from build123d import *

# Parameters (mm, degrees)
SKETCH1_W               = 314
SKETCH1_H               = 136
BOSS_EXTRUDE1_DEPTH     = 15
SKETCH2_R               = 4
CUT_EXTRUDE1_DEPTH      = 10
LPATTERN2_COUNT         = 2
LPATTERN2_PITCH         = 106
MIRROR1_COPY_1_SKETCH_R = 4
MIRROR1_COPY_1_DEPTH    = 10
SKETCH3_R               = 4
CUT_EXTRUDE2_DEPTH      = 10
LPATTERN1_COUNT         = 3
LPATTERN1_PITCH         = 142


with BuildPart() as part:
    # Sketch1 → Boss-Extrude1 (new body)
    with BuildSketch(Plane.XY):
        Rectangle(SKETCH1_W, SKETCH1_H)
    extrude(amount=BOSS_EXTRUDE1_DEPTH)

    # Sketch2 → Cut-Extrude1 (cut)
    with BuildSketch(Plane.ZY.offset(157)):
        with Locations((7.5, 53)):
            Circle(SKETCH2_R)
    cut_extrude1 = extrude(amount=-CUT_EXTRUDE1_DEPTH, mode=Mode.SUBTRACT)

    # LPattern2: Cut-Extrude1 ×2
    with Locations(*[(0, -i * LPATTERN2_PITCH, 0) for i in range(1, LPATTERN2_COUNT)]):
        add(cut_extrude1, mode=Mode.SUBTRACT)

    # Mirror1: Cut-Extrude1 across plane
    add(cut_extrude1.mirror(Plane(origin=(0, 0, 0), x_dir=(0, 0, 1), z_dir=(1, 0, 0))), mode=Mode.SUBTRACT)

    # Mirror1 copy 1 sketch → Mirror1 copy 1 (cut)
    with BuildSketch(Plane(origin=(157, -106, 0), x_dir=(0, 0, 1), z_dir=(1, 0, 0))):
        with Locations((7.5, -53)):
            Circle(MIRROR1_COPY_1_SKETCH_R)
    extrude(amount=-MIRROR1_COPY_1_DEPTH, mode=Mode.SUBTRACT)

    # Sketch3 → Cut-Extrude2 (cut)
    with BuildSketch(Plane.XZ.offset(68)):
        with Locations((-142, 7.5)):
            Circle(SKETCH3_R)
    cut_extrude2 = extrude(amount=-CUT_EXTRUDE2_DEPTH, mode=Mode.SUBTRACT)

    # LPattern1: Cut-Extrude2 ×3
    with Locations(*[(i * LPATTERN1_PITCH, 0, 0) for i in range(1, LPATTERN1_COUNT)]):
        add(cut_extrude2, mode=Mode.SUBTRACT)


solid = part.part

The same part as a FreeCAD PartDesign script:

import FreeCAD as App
import Part
import Sketcher
from FreeCAD import Vector
Q = App.Units.Quantity

doc = App.newDocument("Part")
body = doc.addObject("PartDesign::Body", "Body")

sketch1 = body.newObject("Sketcher::SketchObject", "Sketch")
sketch1.AttachmentSupport = (doc.getObject("XY_Plane"), [""])
sketch1.MapMode = "FlatFace"
sketch1.addGeometry([
    Part.LineSegment(Vector(-157, 68, 0), Vector(-157, -68, 0)),
    Part.LineSegment(Vector(-157, -68, 0), Vector(157, -68, 0)),
    Part.LineSegment(Vector(157, -68, 0), Vector(157, 68, 0)),
    Part.LineSegment(Vector(157, 68, 0), Vector(-157, 68, 0)),
], False)
sketch1.addConstraint([
    Sketcher.Constraint("Coincident", 0, 2, 1, 1),
    Sketcher.Constraint("Coincident", 1, 2, 2, 1),
    Sketcher.Constraint("Coincident", 2, 2, 3, 1),
    Sketcher.Constraint("Coincident", 3, 2, 0, 1),
    Sketcher.Constraint("Vertical", 0),
    Sketcher.Constraint("Horizontal", 1),
    Sketcher.Constraint("Vertical", 2),
    Sketcher.Constraint("Horizontal", 3),
    Sketcher.Constraint("Symmetric", 0, 2, 2, 2, -1, 1),
    Sketcher.Constraint("DistanceX", 1, 1, 1, 2, Q("314 mm")),
    Sketcher.Constraint("DistanceY", 0, 2, 0, 1, Q("136 mm")),
])
pad1 = body.newObject("PartDesign::Pad", "Pad")
pad1.Profile = sketch1
pad1.Length = 15

sketch2 = body.newObject("Sketcher::SketchObject", "Sketch001")
sketch2.AttachmentSupport = (doc.getObject("YZ_Plane"), [""])
sketch2.MapMode = "FlatFace"
sketch2.AttachmentOffset = App.Placement(Vector(0, 0, -157), App.Rotation())
sketch2.addGeometry(Part.Circle(Vector(53, 7.5, 0), Vector(0, 0, 1), 4), False)
sketch2.addConstraint([
    Sketcher.Constraint("Diameter", 0, Q("8 mm")),
    Sketcher.Constraint("DistanceX", -1, 1, 0, 3, Q("53 mm")),
    Sketcher.Constraint("DistanceY", -1, 1, 0, 3, Q("7.5 mm")),
])
pocket1 = body.newObject("PartDesign::Pocket", "Pocket")
pocket1.Profile = sketch2
pocket1.Length = 10
pocket1.Reversed = True
doc.recompute()

linearpattern = body.newObject("PartDesign::LinearPattern", "LinearPattern")
linearpattern.Originals = [pocket1]
linearpattern.Direction = (doc.getObject("Y_Axis"), [""])
linearpattern.Mode = "offset"
linearpattern.Offset = 106
linearpattern.Occurrences = 2
linearpattern.Reversed = True
body.Tip = linearpattern
doc.recompute()

mirrored = body.newObject("PartDesign::Mirrored", "Mirrored")
mirrored.Originals = [pocket1]
mirrored.MirrorPlane = (doc.getObject("YZ_Plane"), [""])
body.Tip = mirrored

sketch3 = body.newObject("Sketcher::SketchObject", "Sketch002")
sketch3.AttachmentSupport = (doc.getObject("YZ_Plane"), [""])
sketch3.MapMode = "FlatFace"
sketch3.AttachmentOffset = App.Placement(Vector(0, 0, 157), App.Rotation())
sketch3.addGeometry(Part.Circle(Vector(-53, 7.5, 0), Vector(0, 0, 1), 4), False)
sketch3.addConstraint([
    Sketcher.Constraint("Diameter", 0, Q("8 mm")),
    Sketcher.Constraint("DistanceX", 0, 3, -1, 1, Q("53 mm")),
    Sketcher.Constraint("DistanceY", -1, 1, 0, 3, Q("7.5 mm")),
])
pocket2 = body.newObject("PartDesign::Pocket", "Pocket001")
pocket2.Profile = sketch3
pocket2.Length = 10

sketch4 = body.newObject("Sketcher::SketchObject", "Sketch003")
sketch4.AttachmentSupport = (doc.getObject("XZ_Plane"), [""])
sketch4.MapMode = "FlatFace"
sketch4.AttachmentOffset = App.Placement(Vector(0, 0, 68), App.Rotation())
sketch4.addGeometry(Part.Circle(Vector(-142, 7.5, 0), Vector(0, 0, 1), 4), False)
sketch4.addConstraint([
    Sketcher.Constraint("Diameter", 0, Q("8 mm")),
    Sketcher.Constraint("DistanceX", 0, 3, -1, 1, Q("142 mm")),
    Sketcher.Constraint("DistanceY", -1, 1, 0, 3, Q("7.5 mm")),
])
pocket3 = body.newObject("PartDesign::Pocket", "Pocket002")
pocket3.Profile = sketch4
pocket3.Length = 10
doc.recompute()

linearpattern2 = body.newObject("PartDesign::LinearPattern", "LinearPattern001")
linearpattern2.Originals = [pocket3]
linearpattern2.Direction = (doc.getObject("X_Axis"), [""])
linearpattern2.Mode = "offset"
linearpattern2.Offset = 142
linearpattern2.Occurrences = 3
body.Tip = linearpattern2

doc.recompute()
